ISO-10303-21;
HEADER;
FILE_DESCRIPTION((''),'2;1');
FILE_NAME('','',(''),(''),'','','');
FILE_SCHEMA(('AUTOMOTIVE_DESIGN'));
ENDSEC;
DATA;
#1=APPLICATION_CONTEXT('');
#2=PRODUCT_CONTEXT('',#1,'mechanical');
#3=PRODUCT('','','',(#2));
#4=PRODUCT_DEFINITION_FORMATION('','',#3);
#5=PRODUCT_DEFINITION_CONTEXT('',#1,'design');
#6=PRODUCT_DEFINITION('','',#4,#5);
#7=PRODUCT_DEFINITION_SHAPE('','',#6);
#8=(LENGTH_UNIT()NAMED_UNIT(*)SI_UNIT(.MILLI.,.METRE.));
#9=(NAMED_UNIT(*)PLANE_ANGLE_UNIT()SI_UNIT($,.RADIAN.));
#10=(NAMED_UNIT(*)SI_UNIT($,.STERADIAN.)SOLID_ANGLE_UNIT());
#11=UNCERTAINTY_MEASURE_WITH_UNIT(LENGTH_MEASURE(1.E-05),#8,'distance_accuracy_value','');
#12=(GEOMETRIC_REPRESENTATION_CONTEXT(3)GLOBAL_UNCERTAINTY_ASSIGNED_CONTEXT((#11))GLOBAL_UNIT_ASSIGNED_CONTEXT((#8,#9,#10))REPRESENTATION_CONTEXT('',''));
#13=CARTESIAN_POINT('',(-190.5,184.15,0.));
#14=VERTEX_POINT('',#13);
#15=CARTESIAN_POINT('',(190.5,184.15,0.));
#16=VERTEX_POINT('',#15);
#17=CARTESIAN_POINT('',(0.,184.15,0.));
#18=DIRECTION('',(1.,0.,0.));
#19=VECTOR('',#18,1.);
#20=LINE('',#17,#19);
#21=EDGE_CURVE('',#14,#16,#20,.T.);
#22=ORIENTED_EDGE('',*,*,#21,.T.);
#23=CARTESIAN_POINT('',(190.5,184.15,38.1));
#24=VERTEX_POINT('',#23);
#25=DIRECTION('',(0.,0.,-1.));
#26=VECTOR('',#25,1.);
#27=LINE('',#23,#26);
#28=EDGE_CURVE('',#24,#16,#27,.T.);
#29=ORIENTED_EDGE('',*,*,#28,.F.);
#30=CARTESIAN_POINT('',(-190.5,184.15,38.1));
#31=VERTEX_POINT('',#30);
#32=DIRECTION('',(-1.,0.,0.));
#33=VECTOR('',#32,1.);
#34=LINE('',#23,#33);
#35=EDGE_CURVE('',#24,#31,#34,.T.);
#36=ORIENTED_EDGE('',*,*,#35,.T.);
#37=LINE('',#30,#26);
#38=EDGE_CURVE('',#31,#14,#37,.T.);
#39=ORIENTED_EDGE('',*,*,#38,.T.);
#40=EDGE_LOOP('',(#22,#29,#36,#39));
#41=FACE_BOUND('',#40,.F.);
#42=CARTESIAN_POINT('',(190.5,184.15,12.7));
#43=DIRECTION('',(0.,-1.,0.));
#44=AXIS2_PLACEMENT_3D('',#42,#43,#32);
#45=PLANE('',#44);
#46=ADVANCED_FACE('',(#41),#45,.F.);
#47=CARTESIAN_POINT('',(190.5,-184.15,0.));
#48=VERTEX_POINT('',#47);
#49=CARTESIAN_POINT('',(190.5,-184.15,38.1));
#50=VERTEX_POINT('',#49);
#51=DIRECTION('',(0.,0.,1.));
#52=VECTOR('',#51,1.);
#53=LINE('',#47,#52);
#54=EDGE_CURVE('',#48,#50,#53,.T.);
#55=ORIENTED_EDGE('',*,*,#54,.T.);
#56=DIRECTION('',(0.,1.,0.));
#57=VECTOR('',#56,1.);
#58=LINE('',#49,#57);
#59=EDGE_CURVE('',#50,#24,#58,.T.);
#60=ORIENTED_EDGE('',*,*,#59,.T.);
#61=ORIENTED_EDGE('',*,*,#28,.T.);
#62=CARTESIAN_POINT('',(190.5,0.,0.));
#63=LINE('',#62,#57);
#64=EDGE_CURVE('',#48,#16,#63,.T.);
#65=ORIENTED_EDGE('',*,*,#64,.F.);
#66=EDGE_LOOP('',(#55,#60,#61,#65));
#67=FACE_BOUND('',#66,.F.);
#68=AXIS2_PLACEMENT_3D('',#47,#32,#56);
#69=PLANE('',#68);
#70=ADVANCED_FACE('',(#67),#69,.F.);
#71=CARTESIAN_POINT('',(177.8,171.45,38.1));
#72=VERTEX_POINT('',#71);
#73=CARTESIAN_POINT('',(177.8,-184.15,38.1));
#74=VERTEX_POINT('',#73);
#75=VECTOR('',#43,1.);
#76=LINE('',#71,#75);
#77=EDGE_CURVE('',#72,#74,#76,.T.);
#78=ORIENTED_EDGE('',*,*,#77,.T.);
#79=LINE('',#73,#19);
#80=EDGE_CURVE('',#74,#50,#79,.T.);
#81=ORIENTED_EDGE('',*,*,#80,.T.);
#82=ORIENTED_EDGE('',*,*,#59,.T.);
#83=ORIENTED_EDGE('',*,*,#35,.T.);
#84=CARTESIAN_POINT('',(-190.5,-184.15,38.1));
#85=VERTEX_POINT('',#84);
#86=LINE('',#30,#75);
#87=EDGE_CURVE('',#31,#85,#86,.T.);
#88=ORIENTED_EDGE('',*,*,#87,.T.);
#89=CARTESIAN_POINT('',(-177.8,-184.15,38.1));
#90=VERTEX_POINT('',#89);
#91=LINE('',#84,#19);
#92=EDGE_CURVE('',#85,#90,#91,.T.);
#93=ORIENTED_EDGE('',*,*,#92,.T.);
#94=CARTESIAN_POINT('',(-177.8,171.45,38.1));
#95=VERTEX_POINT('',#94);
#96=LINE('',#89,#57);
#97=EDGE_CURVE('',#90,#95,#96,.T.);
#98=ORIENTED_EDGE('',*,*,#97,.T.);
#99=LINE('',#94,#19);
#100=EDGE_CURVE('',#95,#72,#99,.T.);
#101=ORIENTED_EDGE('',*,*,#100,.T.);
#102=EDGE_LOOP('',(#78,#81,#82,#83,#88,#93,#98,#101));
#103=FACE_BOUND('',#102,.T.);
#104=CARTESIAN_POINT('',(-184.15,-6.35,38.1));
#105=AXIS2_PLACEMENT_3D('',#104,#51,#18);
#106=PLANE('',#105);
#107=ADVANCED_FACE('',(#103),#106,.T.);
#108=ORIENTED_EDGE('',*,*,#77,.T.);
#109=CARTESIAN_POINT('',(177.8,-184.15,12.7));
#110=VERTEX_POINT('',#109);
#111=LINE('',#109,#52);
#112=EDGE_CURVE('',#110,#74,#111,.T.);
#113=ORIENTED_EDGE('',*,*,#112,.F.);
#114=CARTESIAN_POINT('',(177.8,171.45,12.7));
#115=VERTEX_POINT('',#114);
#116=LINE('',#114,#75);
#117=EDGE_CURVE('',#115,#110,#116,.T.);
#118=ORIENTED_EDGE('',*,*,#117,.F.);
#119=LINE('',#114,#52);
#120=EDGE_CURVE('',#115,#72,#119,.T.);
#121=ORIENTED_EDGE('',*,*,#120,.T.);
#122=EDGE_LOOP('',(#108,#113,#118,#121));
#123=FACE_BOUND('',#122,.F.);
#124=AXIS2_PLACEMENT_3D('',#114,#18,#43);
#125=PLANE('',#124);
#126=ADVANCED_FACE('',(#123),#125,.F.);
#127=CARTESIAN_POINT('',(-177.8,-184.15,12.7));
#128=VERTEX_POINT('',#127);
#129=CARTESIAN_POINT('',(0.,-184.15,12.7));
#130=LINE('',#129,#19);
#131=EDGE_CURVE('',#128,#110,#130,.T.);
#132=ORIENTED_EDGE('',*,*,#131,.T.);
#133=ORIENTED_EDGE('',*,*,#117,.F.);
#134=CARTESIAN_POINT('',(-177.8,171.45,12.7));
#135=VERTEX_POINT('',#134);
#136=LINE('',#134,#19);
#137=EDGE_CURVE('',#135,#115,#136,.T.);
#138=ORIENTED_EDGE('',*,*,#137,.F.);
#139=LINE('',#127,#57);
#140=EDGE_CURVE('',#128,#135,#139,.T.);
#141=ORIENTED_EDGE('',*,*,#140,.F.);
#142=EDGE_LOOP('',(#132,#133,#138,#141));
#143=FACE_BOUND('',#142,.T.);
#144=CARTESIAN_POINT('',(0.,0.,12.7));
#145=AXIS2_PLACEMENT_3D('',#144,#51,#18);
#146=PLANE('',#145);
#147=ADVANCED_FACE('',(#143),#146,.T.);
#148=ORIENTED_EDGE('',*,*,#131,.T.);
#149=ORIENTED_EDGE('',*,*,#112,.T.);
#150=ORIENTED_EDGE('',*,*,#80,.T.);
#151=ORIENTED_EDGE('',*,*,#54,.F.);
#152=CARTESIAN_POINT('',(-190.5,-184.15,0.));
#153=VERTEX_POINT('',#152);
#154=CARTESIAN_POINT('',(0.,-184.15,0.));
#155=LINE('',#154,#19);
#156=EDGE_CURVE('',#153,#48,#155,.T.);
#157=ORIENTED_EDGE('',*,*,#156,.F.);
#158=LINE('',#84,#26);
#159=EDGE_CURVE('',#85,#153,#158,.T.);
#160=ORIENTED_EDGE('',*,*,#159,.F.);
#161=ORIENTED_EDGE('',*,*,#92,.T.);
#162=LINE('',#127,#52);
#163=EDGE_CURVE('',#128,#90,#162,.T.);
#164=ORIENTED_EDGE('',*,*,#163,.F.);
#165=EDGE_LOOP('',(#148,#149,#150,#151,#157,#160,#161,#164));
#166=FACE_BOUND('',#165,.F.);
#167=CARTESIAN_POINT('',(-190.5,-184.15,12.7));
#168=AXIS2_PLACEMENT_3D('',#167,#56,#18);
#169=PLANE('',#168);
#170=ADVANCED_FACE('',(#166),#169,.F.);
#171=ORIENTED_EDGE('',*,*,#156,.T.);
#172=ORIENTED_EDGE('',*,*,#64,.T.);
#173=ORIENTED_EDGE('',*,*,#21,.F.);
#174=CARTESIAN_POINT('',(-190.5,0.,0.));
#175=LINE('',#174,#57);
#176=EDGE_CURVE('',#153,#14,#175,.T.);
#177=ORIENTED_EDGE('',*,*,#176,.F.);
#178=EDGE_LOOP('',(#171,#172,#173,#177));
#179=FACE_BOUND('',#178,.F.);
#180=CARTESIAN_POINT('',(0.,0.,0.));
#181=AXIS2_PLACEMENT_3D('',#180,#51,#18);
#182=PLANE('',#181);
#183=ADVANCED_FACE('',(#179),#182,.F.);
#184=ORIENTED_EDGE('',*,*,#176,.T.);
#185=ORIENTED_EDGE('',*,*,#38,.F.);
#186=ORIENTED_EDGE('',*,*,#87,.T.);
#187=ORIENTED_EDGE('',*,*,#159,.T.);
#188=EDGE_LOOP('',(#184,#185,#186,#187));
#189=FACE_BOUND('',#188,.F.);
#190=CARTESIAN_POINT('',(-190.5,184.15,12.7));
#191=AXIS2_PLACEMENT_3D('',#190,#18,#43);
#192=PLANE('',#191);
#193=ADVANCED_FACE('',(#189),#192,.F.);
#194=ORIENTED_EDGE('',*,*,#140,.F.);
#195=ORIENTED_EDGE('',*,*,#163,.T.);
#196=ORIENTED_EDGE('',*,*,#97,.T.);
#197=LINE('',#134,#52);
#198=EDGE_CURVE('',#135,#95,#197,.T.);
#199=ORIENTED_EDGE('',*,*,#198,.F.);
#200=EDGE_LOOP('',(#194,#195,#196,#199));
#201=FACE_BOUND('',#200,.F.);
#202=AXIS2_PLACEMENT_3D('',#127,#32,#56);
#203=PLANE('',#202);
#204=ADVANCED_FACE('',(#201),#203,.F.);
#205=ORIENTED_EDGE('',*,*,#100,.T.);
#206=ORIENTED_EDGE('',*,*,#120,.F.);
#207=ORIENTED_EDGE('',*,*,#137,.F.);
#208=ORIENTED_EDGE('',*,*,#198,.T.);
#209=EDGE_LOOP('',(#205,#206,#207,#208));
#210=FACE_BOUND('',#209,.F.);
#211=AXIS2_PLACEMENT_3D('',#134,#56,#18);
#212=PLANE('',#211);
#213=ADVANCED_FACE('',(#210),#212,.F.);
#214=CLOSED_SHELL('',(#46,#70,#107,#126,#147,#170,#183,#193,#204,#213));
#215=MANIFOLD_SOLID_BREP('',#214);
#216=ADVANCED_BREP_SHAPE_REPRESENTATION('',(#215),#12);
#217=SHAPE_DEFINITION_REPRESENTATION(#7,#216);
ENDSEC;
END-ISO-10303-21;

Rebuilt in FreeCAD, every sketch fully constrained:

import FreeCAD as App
import Part
import Sketcher
Q = App.Units.Quantity


def add_polygon(sketch, points):
    """Adds a closed chain of lines whose ends are joined by coincident constraints."""
    first, n = sketch.GeometryCount, len(points)
    for a, b in zip(points, points[1:] + points[:1]):
        sketch.addGeometry(Part.LineSegment(App.Vector(*a, 0), App.Vector(*b, 0)), False)
    for i in range(n):
        sketch.addConstraint(Sketcher.Constraint("Coincident", first + i, 2, first + (i + 1) % n, 1))

doc = App.newDocument("Part")
body = doc.addObject("PartDesign::Body", "Body")

sketch1 = doc.addObject("Sketcher::SketchObject", "Sketch")
body.addObject(sketch1)
sketch1.AttachmentSupport = (doc.XY_Plane, [""])
sketch1.MapMode = "FlatFace"
add_polygon(sketch1, [(-190, 184), (-190, -184), (190, -184), (190, 184)])
sketch1.addConstraint([
    Sketcher.Constraint("Vertical", 0),
    Sketcher.Constraint("Horizontal", 1),
    Sketcher.Constraint("Vertical", 2),
    Sketcher.Constraint("Horizontal", 3),
    Sketcher.Constraint("Symmetric", 0, 2, 2, 2, -1, 1),
    Sketcher.Constraint("DistanceX", 1, 1, 1, 2, Q("15 in")),
    Sketcher.Constraint("DistanceY", 0, 2, 0, 1, Q("14.5 in")),
])
pad1 = doc.addObject("PartDesign::Pad", "Pad")
body.addObject(pad1)
pad1.Profile = sketch1
pad1.Length = Q("0.5 in")

sketch2 = doc.addObject("Sketcher::SketchObject", "Sketch001")
body.addObject(sketch2)
sketch2.AttachmentSupport = (doc.XY_Plane, [""])
sketch2.MapMode = "FlatFace"
sketch2.AttachmentOffset = App.Placement(App.Vector(0, 0, 0.5 * 25.4), App.Rotation())
add_polygon(sketch2, [(-190, -184), (-178, -184), (-178, 171), (178, 171), (178, -184), (190, -184), (190, 184), (-190, 184)])
sketch2.addConstraint([
    Sketcher.Constraint("Horizontal", 0),
    Sketcher.Constraint("Vertical", 1),
    Sketcher.Constraint("Horizontal", 2),
    Sketcher.Constraint("Vertical", 3),
    Sketcher.Constraint("Horizontal", 4),
    Sketcher.Constraint("Vertical", 5),
    Sketcher.Constraint("Horizontal", 6),
    Sketcher.Constraint("Vertical", 7),
    Sketcher.Constraint("Symmetric", 4, 2, 6, 2, -1, 1),
    Sketcher.Constraint("Symmetric", 0, 2, 3, 2, -2),
    Sketcher.Constraint("Equal", 2, 1),
    Sketcher.Constraint("DistanceX", 2, 1, 2, 2, Q("14 in")),
    Sketcher.Constraint("DistanceX", 6, 2, 6, 1, Q("15 in")),
    Sketcher.Constraint("DistanceY", 5, 1, 5, 2, Q("14.5 in")),
])
pad2 = doc.addObject("PartDesign::Pad", "Pad001")
body.addObject(pad2)
pad2.Profile = sketch2
pad2.Length = Q("1 in")

doc.recompute()
